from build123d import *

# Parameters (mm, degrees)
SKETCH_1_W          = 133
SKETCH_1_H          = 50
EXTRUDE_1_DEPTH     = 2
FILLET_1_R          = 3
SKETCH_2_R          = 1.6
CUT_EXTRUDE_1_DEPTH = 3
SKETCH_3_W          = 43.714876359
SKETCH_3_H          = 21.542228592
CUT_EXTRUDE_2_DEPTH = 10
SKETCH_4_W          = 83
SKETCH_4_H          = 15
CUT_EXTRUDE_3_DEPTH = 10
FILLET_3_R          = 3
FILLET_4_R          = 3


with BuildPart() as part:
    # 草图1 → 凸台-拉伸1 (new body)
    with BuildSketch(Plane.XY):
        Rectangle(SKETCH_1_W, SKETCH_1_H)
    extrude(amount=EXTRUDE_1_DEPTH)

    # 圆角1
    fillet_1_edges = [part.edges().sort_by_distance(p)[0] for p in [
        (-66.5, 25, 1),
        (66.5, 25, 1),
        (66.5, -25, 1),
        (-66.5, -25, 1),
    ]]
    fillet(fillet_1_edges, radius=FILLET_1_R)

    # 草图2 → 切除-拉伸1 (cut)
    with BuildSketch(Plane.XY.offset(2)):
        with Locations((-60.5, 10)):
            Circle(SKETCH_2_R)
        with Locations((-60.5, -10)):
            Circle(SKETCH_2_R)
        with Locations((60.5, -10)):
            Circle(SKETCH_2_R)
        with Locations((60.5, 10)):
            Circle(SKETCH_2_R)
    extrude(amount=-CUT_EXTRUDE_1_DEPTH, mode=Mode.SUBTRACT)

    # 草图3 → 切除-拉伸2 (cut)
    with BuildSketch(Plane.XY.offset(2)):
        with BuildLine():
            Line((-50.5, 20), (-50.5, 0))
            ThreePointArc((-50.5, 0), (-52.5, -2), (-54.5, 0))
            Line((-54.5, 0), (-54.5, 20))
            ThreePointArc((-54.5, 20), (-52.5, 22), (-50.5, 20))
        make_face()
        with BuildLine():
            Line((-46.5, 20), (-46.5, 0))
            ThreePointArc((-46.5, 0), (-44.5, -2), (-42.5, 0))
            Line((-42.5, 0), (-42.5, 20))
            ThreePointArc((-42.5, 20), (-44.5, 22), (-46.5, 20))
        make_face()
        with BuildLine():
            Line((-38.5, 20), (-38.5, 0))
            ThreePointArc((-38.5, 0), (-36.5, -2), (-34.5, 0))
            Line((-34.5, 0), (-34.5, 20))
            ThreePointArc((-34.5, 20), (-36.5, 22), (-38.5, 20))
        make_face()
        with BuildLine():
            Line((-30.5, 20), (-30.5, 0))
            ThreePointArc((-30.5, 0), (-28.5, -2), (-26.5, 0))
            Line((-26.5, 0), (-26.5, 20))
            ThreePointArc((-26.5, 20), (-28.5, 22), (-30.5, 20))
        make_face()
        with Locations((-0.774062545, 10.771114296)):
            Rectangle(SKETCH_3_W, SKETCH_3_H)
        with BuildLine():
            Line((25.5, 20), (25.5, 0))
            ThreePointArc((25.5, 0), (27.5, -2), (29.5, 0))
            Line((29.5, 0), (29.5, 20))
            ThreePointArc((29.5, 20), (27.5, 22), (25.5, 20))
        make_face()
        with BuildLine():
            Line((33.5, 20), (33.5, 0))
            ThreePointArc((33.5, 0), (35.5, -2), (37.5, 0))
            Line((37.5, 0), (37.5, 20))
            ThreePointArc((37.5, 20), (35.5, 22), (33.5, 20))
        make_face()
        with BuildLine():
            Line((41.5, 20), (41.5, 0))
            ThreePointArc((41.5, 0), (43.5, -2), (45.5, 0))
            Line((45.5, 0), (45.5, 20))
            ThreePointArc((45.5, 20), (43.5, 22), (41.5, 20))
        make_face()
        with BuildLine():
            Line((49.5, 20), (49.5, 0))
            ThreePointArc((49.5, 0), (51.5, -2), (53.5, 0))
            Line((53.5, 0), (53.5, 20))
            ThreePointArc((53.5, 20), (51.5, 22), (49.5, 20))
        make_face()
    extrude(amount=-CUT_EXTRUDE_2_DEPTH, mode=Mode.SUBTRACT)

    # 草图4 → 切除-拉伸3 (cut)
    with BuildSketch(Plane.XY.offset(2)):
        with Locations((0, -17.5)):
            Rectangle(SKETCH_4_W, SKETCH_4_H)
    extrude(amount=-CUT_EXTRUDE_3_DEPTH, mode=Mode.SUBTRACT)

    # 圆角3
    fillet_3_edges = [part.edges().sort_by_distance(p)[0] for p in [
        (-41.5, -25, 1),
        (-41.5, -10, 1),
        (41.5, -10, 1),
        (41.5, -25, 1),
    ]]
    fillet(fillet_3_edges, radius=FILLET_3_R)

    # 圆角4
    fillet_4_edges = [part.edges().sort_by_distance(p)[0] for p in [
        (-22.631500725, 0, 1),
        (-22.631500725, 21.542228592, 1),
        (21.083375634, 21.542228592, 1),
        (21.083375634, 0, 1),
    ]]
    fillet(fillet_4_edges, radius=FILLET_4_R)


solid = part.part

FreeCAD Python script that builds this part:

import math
import FreeCAD as App
import Part
import Sketcher
from FreeCAD import Vector


def edges_at(feature, points):
    """Names of the edges that pass closest to the given points."""
    edges = feature.Shape.Edges
    near = lambda p: min(range(len(edges)), key=lambda i: edges[i].distToShape(Part.Vertex(*p))[0])
    return sorted({f"Edge{near(p) + 1}" for p in points})

doc = App.newDocument("Part")
body = doc.addObject("PartDesign::Body", "Body")

sketch1 = doc.addObject("Sketcher::SketchObject", "Sketch")
body.addObject(sketch1)
sketch1.AttachmentSupport = (doc.XY_Plane, [""])
sketch1.MapMode = "FlatFace"
sketch1.addGeometry([
    Part.LineSegment(Vector(-66.5, 25, 0), Vector(-66.5, -25, 0)),
    Part.LineSegment(Vector(-66.5, -25, 0), Vector(66.5, -25, 0)),
    Part.LineSegment(Vector(66.5, -25, 0), Vector(66.5, 25, 0)),
    Part.LineSegment(Vector(66.5, 25, 0), Vector(-66.5, 25, 0)),
], False)
sketch1.addConstraint([
    Sketcher.Constraint("Coincident", 0, 2, 1, 1),
    Sketcher.Constraint("Coincident", 1, 2, 2, 1),
    Sketcher.Constraint("Coincident", 2, 2, 3, 1),
    Sketcher.Constraint("Coincident", 3, 2, 0, 1),
    Sketcher.Constraint("Vertical", 0),
    Sketcher.Constraint("Horizontal", 1),
    Sketcher.Constraint("Vertical", 2),
    Sketcher.Constraint("Horizontal", 3),
    Sketcher.Constraint("Symmetric", 0, 2, 2, 2, -1, 1),
    Sketcher.Constraint("DistanceX", 1, 1, 1, 2, 133.0),
    Sketcher.Constraint("DistanceY", 0, 2, 0, 1, 50.0),
])
pad1 = doc.addObject("PartDesign::Pad", "Pad")
body.addObject(pad1)
pad1.Profile = sketch1
pad1.Length = 2
doc.recompute()

fillet = doc.addObject("PartDesign::Fillet", "Fillet")
body.addObject(fillet)
fillet.Base = (pad1, edges_at(pad1, [
    (-66.5, 25, 1),
    (66.5, 25, 1),
    (66.5, -25, 1),
    (-66.5, -25, 1),
]))
fillet.Radius = 3

sketch2 = doc.addObject("Sketcher::SketchObject", "Sketch001")
body.addObject(sketch2)
sketch2.AttachmentSupport = (doc.XY_Plane, [""])
sketch2.MapMode = "FlatFace"
sketch2.AttachmentOffset = App.Placement(Vector(0, 0, 2), App.Rotation())
sketch2.addGeometry([
    Part.Circle(Vector(-60.5, 10, 0), Vector(0, 0, 1), 1.6),
    Part.Circle(Vector(-60.5, -10, 0), Vector(0, 0, 1), 1.6),
    Part.Circle(Vector(60.5, -10, 0), Vector(0, 0, 1), 1.6),
    Part.Circle(Vector(60.5, 10, 0), Vector(0, 0, 1), 1.6),
], False)
sketch2.addConstraint([
    Sketcher.Constraint("Equal", 0, 1),
    Sketcher.Constraint("Equal", 1, 2),
    Sketcher.Constraint("Equal", 2, 3),
    Sketcher.Constraint("Symmetric", 0, 3, 2, 3, -1, 1),
    Sketcher.Constraint("Symmetric", 1, 3, 3, 3, -1, 1),
    Sketcher.Constraint("Symmetric", 1, 3, 2, 3, -2),
    Sketcher.Constraint("Diameter", 0, 3.2),
    Sketcher.Constraint("DistanceY", -1, 1, 0, 3, 10.0),
    Sketcher.Constraint("DistanceX", 1, 3, 2, 3, 121.0),
])
pocket1 = doc.addObject("PartDesign::Pocket", "Pocket")
body.addObject(pocket1)
pocket1.Profile = sketch2
pocket1.Length = 3

sketch3 = doc.addObject("Sketcher::SketchObject", "Sketch002")
body.addObject(sketch3)
sketch3.AttachmentSupport = (doc.XY_Plane, [""])
sketch3.MapMode = "FlatFace"
sketch3.AttachmentOffset = App.Placement(Vector(0, 0, 2), App.Rotation())
sketch3.addGeometry([
    Part.LineSegment(Vector(-50.5, 0, 0), Vector(-50.5, 20, 0)),
    Part.ArcOfCircle(Part.Circle(Vector(-52.5, 20, 0), Vector(0, 0, 1), 2), math.radians(0), math.radians(180)),
    Part.LineSegment(Vector(-54.5, 20, 0), Vector(-54.5, 0, 0)),
    Part.ArcOfCircle(Part.Circle(Vector(-52.5, 0, 0), Vector(0, 0, 1), 2), math.radians(180), math.radians(360)),
    Part.LineSegment(Vector(-46.5, 20, 0), Vector(-46.5, 0, 0)),
    Part.ArcOfCircle(Part.Circle(Vector(-44.5, 0, 0), Vector(0, 0, 1), 2), math.radians(180), math.radians(360)),
    Part.LineSegment(Vector(-42.5, 0, 0), Vector(-42.5, 20, 0)),
    Part.ArcOfCircle(Part.Circle(Vector(-44.5, 20, 0), Vector(0, 0, 1), 2), math.radians(0), math.radians(180)),
    Part.LineSegment(Vector(-38.5, 20, 0), Vector(-38.5, 0, 0)),
    Part.ArcOfCircle(Part.Circle(Vector(-36.5, 0, 0), Vector(0, 0, 1), 2), math.radians(180), math.radians(360)),
    Part.LineSegment(Vector(-34.5, 0, 0), Vector(-34.5, 20, 0)),
    Part.ArcOfCircle(Part.Circle(Vector(-36.5, 20, 0), Vector(0, 0, 1), 2), math.radians(0), math.radians(180)),
    Part.LineSegment(Vector(-30.5, 20, 0), Vector(-30.5, 0, 0)),
    Part.ArcOfCircle(Part.Circle(Vector(-28.5, 0, 0), Vector(0, 0, 1), 2), math.radians(180), math.radians(360)),
    Part.LineSegment(Vector(-26.5, 0, 0), Vector(-26.5, 20, 0)),
    Part.ArcOfCircle(Part.Circle(Vector(-28.5, 20, 0), Vector(0, 0, 1), 2), math.radians(0), math.radians(180)),
    Part.LineSegment(Vector(-22.631501, 21.542229, 0), Vector(-22.631501, 0, 0)),
    Part.LineSegment(Vector(-22.631501, 0, 0), Vector(21.083376, 0, 0)),
    Part.LineSegment(Vector(21.083376, 0, 0), Vector(21.083376, 21.542229, 0)),
    Part.LineSegment(Vector(21.083376, 21.542229, 0), Vector(-22.631501, 21.542229, 0)),
    Part.LineSegment(Vector(25.5, 20, 0), Vector(25.5, 0, 0)),
    Part.ArcOfCircle(Part.Circle(Vector(27.5, 0, 0), Vector(0, 0, 1), 2), math.radians(180), math.radians(360)),
    Part.LineSegment(Vector(29.5, 0, 0), Vector(29.5, 20, 0)),
    Part.ArcOfCircle(Part.Circle(Vector(27.5, 20, 0), Vector(0, 0, 1), 2), math.radians(0), math.radians(180)),
    Part.LineSegment(Vector(33.5, 20, 0), Vector(33.5, 0, 0)),
    Part.ArcOfCircle(Part.Circle(Vector(35.5, 0, 0), Vector(0, 0, 1), 2), math.radians(180), math.radians(360)),
    Part.LineSegment(Vector(37.5, 0, 0), Vector(37.5, 20, 0)),
    Part.ArcOfCircle(Part.Circle(Vector(35.5, 20, 0), Vector(0, 0, 1), 2), math.radians(0), math.radians(180)),
    Part.LineSegment(Vector(41.5, 20, 0), Vector(41.5, 0, 0)),
    Part.ArcOfCircle(Part.Circle(Vector(43.5, 0, 0), Vector(0, 0, 1), 2), math.radians(180), math.radians(360)),
    Part.LineSegment(Vector(45.5, 0, 0), Vector(45.5, 20, 0)),
    Part.ArcOfCircle(Part.Circle(Vector(43.5, 20, 0), Vector(0, 0, 1), 2), math.radians(0), math.radians(180)),
    Part.LineSegment(Vector(49.5, 20, 0), Vector(49.5, 0, 0)),
    Part.ArcOfCircle(Part.Circle(Vector(51.5, 0, 0), Vector(0, 0, 1), 2), math.radians(180), math.radians(360)),
    Part.LineSegment(Vector(53.5, 0, 0), Vector(53.5, 20, 0)),
    Part.ArcOfCircle(Part.Circle(Vector(51.5, 20, 0), Vector(0, 0, 1), 2), math.radians(0), math.radians(180)),
], False)
sketch3.addConstraint([
    Sketcher.Constraint("Tangent", 0, 2, 1, 1),
    Sketcher.Constraint("Tangent", 1, 2, 2, 1),
    Sketcher.Constraint("Tangent", 2, 2, 3, 1),
    Sketcher.Constraint("Tangent", 3, 2, 0, 1),
    Sketcher.Constraint("Tangent", 4, 2, 5, 1),
    Sketcher.Constraint("Tangent", 5, 2, 6, 1),
    Sketcher.Constraint("Tangent", 6, 2, 7, 1),
    Sketcher.Constraint("Tangent", 7, 2, 4, 1),
    Sketcher.Constraint("Tangent", 8, 2, 9, 1),
    Sketcher.Constraint("Tangent", 9, 2, 10, 1),
    Sketcher.Constraint("Tangent", 10, 2, 11, 1),
    Sketcher.Constraint("Tangent", 11, 2, 8, 1),
    Sketcher.Constraint("Tangent", 12, 2, 13, 1),
    Sketcher.Constraint("Tangent", 13, 2, 14, 1),
    Sketcher.Constraint("Tangent", 14, 2, 15, 1),
    Sketcher.Constraint("Tangent", 15, 2, 12, 1),
    Sketcher.Constraint("Coincident", 16, 2, 17, 1),
    Sketcher.Constraint("Coincident", 17, 2, 18, 1),
    Sketcher.Constraint("Coincident", 18, 2, 19, 1),
    Sketcher.Constraint("Coincident", 19, 2, 16, 1),
    Sketcher.Constraint("Tangent", 20, 2, 21, 1),
    Sketcher.Constraint("Tangent", 21, 2, 22, 1),
    Sketcher.Constraint("Tangent", 22, 2, 23, 1),
    Sketcher.Constraint("Tangent", 23, 2, 20, 1),
    Sketcher.Constraint("Tangent", 24, 2, 25, 1),
    Sketcher.Constraint("Tangent", 25, 2, 26, 1),
    Sketcher.Constraint("Tangent", 26, 2, 27, 1),
    Sketcher.Constraint("Tangent", 27, 2, 24, 1),
    Sketcher.Constraint("Tangent", 28, 2, 29, 1),
    Sketcher.Constraint("Tangent", 29, 2, 30, 1),
    Sketcher.Constraint("Tangent", 30, 2, 31, 1),
    Sketcher.Constraint("Tangent", 31, 2, 28, 1),
    Sketcher.Constraint("Tangent", 32, 2, 33, 1),
    Sketcher.Constraint("Tangent", 33, 2, 34, 1),
    Sketcher.Constraint("Tangent", 34, 2, 35, 1),
    Sketcher.Constraint("Tangent", 35, 2, 32, 1),
    Sketcher.Constraint("Vertical", 0),
    Sketcher.Constraint("Vertical", 2),
    Sketcher.Constraint("Vertical", 4),
    Sketcher.Constraint("Vertical", 6),
    Sketcher.Constraint("Vertical", 8),
    Sketcher.Constraint("Vertical", 10),
    Sketcher.Constraint("Vertical", 12),
    Sketcher.Constraint("Vertical", 14),
    Sketcher.Constraint("Vertical", 16),
    Sketcher.Constraint("Horizontal", 17),
    Sketcher.Constraint("Vertical", 18),
    Sketcher.Constraint("Horizontal", 19),
    Sketcher.Constraint("Vertical", 20),
    Sketcher.Constraint("Vertical", 22),
    Sketcher.Constraint("Vertical", 24),
    Sketcher.Constraint("Vertical", 26),
    Sketcher.Constraint("Vertical", 28),
    Sketcher.Constraint("Vertical", 30),
    Sketcher.Constraint("Vertical", 32),
    Sketcher.Constraint("Vertical", 34),
    Sketcher.Constraint("Equal", 3, 5),
    Sketcher.Constraint("Equal", 7, 9),
    Sketcher.Constraint("Equal", 11, 13),
    Sketcher.Constraint("Equal", 15, 21),
    Sketcher.Constraint("Equal", 23, 25),
    Sketcher.Constraint("Equal", 27, 29),
    Sketcher.Constraint("Equal", 31, 33),
    Sketcher.Constraint("PointOnObject", 3, 3, -1),
    Sketcher.Constraint("PointOnObject", 5, 3, -1),
    Sketcher.Constraint("PointOnObject", 9, 3, -1),
    Sketcher.Constraint("PointOnObject", 13, 3, -1),
    Sketcher.Constraint("PointOnObject", 21, 3, -1),
    Sketcher.Constraint("PointOnObject", 25, 3, -1),
    Sketcher.Constraint("PointOnObject", 29, 3, -1),
    Sketcher.Constraint("PointOnObject", 33, 3, -1),
    Sketcher.Constraint("PointOnObject", 16, 2, -1),
    Sketcher.Constraint("Horizontal", 1, 3, 7, 3),
    Sketcher.Constraint("Horizontal", 7, 3, 11, 3),
    Sketcher.Constraint("Horizontal", 11, 3, 15, 3),
    Sketcher.Constraint("Horizontal", 15, 3, 23, 3),
    Sketcher.Constraint("Horizontal", 23, 3, 27, 3),
    Sketcher.Constraint("Horizontal", 27, 3, 31, 3),
    Sketcher.Constraint("Horizontal", 31, 3, 35, 3),
    Sketcher.Constraint("Radius", 1, 2.0),
    Sketcher.Constraint("DistanceY", 0, 1, 0, 2, 20.0),
    Sketcher.Constraint("DistanceX", 3, 3, 5, 3, 8.0),
    Sketcher.Constraint("DistanceX", 5, 3, 9, 3, 8.0),
    Sketcher.Constraint("DistanceX", 9, 3, 13, 3, 8.0),
    Sketcher.Constraint("DistanceX", 13, 3, 21, 3, 56.0),
    Sketcher.Constraint("DistanceX", 21, 3, 25, 3, 8.0),
    Sketcher.Constraint("DistanceX", 25, 3, 29, 3, 8.0),
    Sketcher.Constraint("DistanceX", 29, 3, 33, 3, 8.0),
    Sketcher.Constraint("DistanceX", 1, 3, -1, 1, 52.5),
    Sketcher.Constraint("DistanceY", 16, 2, 16, 1, 21.542229),
    Sketcher.Constraint("DistanceX", 16, 2, -1, 1, 22.631501),
    Sketcher.Constraint("DistanceX", 17, 1, 17, 2, 43.714876),
])
pocket2 = doc.addObject("PartDesign::Pocket", "Pocket001")
body.addObject(pocket2)
pocket2.Profile = sketch3
pocket2.Length = 10

sketch4 = doc.addObject("Sketcher::SketchObject", "Sketch003")
body.addObject(sketch4)
sketch4.AttachmentSupport = (doc.XY_Plane, [""])
sketch4.MapMode = "FlatFace"
sketch4.AttachmentOffset = App.Placement(Vector(0, 0, 2), App.Rotation())
sketch4.addGeometry([
    Part.LineSegment(Vector(-41.5, -10, 0), Vector(-41.5, -25, 0)),
    Part.LineSegment(Vector(-41.5, -25, 0), Vector(41.5, -25, 0)),
    Part.LineSegment(Vector(41.5, -25, 0), Vector(41.5, -10, 0)),
    Part.LineSegment(Vector(41.5, -10, 0), Vector(-41.5, -10, 0)),
], False)
sketch4.addConstraint([
    Sketcher.Constraint("Coincident", 0, 2, 1, 1),
    Sketcher.Constraint("Coincident", 1, 2, 2, 1),
    Sketcher.Constraint("Coincident", 2, 2, 3, 1),
    Sketcher.Constraint("Coincident", 3, 2, 0, 1),
    Sketcher.Constraint("Vertical", 0),
    Sketcher.Constraint("Horizontal", 1),
    Sketcher.Constraint("Vertical", 2),
    Sketcher.Constraint("Horizontal", 3),
    Sketcher.Constraint("DistanceX", 1, 1, 1, 2, 83.0),
    Sketcher.Constraint("DistanceY", 0, 2, 0, 1, 15.0),
    Sketcher.Constraint("DistanceY", 0, 2, -1, 1, 25.0),
    Sketcher.Constraint("DistanceX", 0, 2, -1, 1, 41.5),
])
pocket3 = doc.addObject("PartDesign::Pocket", "Pocket002")
body.addObject(pocket3)
pocket3.Profile = sketch4
pocket3.Length = 10
doc.recompute()

fillet2 = doc.addObject("PartDesign::Fillet", "Fillet001")
body.addObject(fillet2)
fillet2.Base = (pocket3, edges_at(pocket3, [
    (-41.5, -25, 1),
    (-41.5, -10, 1),
    (41.5, -10, 1),
    (41.5, -25, 1),
]))
fillet2.Radius = 3
doc.recompute()

fillet3 = doc.addObject("PartDesign::Fillet", "Fillet002")
body.addObject(fillet3)
fillet3.Base = (fillet2, edges_at(fillet2, [
    (-22.632, 0, 1),
    (-22.632, 21.542, 1),
    (21.083, 21.542, 1),
    (21.083, 0, 1),
]))
fillet3.Radius = 3

doc.recompute()
